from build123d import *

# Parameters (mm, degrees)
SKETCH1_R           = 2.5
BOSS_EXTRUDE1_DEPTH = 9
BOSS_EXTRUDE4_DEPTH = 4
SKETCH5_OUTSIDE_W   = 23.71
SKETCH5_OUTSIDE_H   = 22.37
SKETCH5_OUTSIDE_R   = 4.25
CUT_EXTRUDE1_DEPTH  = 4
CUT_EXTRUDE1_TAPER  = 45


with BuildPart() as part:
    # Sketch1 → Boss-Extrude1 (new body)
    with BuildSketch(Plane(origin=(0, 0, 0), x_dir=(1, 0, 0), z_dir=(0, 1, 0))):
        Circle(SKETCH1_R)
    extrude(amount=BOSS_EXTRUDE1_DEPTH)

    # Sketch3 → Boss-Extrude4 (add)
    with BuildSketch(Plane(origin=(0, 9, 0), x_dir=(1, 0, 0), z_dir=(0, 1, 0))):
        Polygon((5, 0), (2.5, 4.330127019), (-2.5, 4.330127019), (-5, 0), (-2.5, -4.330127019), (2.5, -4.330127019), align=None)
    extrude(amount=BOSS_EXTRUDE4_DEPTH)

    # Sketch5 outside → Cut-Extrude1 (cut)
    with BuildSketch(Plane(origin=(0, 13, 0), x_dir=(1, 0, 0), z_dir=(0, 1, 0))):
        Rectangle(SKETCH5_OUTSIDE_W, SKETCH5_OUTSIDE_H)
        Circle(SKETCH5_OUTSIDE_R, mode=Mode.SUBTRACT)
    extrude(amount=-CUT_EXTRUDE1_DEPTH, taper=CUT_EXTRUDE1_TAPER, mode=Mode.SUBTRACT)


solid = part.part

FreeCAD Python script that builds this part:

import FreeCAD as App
import Part
import Sketcher

V = App.Vector
Q = App.Units.Quantity


def add_polygon(sketch, points):
    """Adds a closed chain of lines whose ends are joined by coincident constraints."""
    first, n = sketch.GeometryCount, len(points)
    for a, b in zip(points, points[1:] + points[:1]):
        sketch.addGeometry(Part.LineSegment(App.Vector(*a, 0), App.Vector(*b, 0)), False)
    for i in range(n):
        sketch.addConstraint(Sketcher.Constraint("Coincident", first + i, 2, first + (i + 1) % n, 1))

doc = App.newDocument("Part")
params = doc.addObject("Spreadsheet::Sheet", "Params")
for row, (alias, value) in enumerate([
    ("sketch1_diameter", "5 mm"),
    ("pad1_length", "9 mm"),
    ("sketch2_width", "5 mm"),
    ("sketch2_length", "5 mm"),
    ("pad2_length", "4 mm"),
    ("sketch3_diameter", "8.5 mm"),
    ("sketch3_width", "23.71 mm"),
    ("sketch3_height", "22.37 mm"),
    ("pocket1_length", "4 mm"),
    ("pocket1_taper", "45 deg"),
], start=1):
    params.set(f"A{row}", alias)
    params.set(f"B{row}", "=" + value)
    params.setAlias(f"B{row}", alias)

body = doc.addObject("PartDesign::Body", "Body")

sketch1 = body.newObject("Sketcher::SketchObject", "Sketch")
sketch1.AttachmentSupport = (doc.getObject("XZ_Plane"), [""])
sketch1.MapMode = "FlatFace"
sketch1.addGeometry(Part.Circle(V(0, 0, 0), V(0, 0, 1), 2.5), False)
sketch1.addConstraint([
    Sketcher.Constraint("Coincident", 0, 3, -1, 1),
    Sketcher.Constraint("Diameter", 0, Q("5 mm")),
])
sketch1.setExpression("Constraints[1]", "Params.sketch1_diameter")
pad1 = body.newObject("PartDesign::Pad", "Pad")
pad1.Profile = sketch1
pad1.setExpression("Length", "Params.pad1_length")
pad1.Reversed = True

sketch2 = body.newObject("Sketcher::SketchObject", "Sketch001")
sketch2.AttachmentSupport = (doc.getObject("XZ_Plane"), [""])
sketch2.MapMode = "FlatFace"
sketch2.AttachmentOffset = App.Placement(V(0, 0, -9), App.Rotation())
add_polygon(sketch2, [(5, 0), (2, -4), (-2, -4), (-5, 0), (-2, 4), (2, 4)])
sketch2.addConstraint([
    Sketcher.Constraint("Horizontal", 1),
    Sketcher.Constraint("Horizontal", 4),
    Sketcher.Constraint("Symmetric", 0, 2, 3, 2, -1, 1),
    Sketcher.Constraint("Symmetric", 2, 2, 5, 2, -1, 1),
    Sketcher.Constraint("PointOnObject", 2, 2, -1),
    Sketcher.Constraint("Parallel", 2, 5),
    Sketcher.Constraint("Vertical", 1, 2, 3, 2),
    Sketcher.Constraint("DistanceX", 1, 2, 1, 1, Q("5 mm")),
    Sketcher.Constraint("Angle", 0, Q("-120 deg")),
    Sketcher.Constraint("Distance", 0, Q("5 mm")),
])
sketch2.setExpression("Constraints[13]", "Params.sketch2_width")
sketch2.setExpression("Constraints[15]", "Params.sketch2_length")
pad2 = body.newObject("PartDesign::Pad", "Pad001")
pad2.Profile = sketch2
pad2.setExpression("Length", "Params.pad2_length")
pad2.Reversed = True

sketch3 = body.newObject("Sketcher::SketchObject", "Sketch002")
sketch3.AttachmentSupport = (doc.getObject("XZ_Plane"), [""])
sketch3.MapMode = "FlatFace"
sketch3.AttachmentOffset = App.Placement(V(0, 0, -13), App.Rotation())
add_polygon(sketch3, [(-11.9, -11.2), (-11.9, 11.2), (11.9, 11.2), (11.9, -11.2)])
sketch3.addGeometry(Part.Circle(V(0, 0, 0), V(0, 0, 1), 4.2), False)
sketch3.addConstraint([
    Sketcher.Constraint("Vertical", 0),
    Sketcher.Constraint("Horizontal", 1),
    Sketcher.Constraint("Vertical", 2),
    Sketcher.Constraint("Horizontal", 3),
    Sketcher.Constraint("Coincident", 4, 3, -1, 1),
    Sketcher.Constraint("Symmetric", 0, 2, 2, 2, -1, 1),
    Sketcher.Constraint("Diameter", 4, Q("8.5 mm")),
    Sketcher.Constraint("DistanceX", 1, 1, 1, 2, Q("23.71 mm")),
    Sketcher.Constraint("DistanceY", 0, 1, 0, 2, Q("22.37 mm")),
])
sketch3.setExpression("Constraints[10]", "Params.sketch3_diameter")
sketch3.setExpression("Constraints[11]", "Params.sketch3_width")
sketch3.setExpression("Constraints[12]", "Params.sketch3_height")
pocket1 = body.newObject("PartDesign::Pocket", "Pocket")
pocket1.Profile = sketch3
pocket1.setExpression("Length", "Params.pocket1_length")
pocket1.Reversed = True
pocket1.setExpression("TaperAngle", "Params.pocket1_taper")

doc.recompute()
